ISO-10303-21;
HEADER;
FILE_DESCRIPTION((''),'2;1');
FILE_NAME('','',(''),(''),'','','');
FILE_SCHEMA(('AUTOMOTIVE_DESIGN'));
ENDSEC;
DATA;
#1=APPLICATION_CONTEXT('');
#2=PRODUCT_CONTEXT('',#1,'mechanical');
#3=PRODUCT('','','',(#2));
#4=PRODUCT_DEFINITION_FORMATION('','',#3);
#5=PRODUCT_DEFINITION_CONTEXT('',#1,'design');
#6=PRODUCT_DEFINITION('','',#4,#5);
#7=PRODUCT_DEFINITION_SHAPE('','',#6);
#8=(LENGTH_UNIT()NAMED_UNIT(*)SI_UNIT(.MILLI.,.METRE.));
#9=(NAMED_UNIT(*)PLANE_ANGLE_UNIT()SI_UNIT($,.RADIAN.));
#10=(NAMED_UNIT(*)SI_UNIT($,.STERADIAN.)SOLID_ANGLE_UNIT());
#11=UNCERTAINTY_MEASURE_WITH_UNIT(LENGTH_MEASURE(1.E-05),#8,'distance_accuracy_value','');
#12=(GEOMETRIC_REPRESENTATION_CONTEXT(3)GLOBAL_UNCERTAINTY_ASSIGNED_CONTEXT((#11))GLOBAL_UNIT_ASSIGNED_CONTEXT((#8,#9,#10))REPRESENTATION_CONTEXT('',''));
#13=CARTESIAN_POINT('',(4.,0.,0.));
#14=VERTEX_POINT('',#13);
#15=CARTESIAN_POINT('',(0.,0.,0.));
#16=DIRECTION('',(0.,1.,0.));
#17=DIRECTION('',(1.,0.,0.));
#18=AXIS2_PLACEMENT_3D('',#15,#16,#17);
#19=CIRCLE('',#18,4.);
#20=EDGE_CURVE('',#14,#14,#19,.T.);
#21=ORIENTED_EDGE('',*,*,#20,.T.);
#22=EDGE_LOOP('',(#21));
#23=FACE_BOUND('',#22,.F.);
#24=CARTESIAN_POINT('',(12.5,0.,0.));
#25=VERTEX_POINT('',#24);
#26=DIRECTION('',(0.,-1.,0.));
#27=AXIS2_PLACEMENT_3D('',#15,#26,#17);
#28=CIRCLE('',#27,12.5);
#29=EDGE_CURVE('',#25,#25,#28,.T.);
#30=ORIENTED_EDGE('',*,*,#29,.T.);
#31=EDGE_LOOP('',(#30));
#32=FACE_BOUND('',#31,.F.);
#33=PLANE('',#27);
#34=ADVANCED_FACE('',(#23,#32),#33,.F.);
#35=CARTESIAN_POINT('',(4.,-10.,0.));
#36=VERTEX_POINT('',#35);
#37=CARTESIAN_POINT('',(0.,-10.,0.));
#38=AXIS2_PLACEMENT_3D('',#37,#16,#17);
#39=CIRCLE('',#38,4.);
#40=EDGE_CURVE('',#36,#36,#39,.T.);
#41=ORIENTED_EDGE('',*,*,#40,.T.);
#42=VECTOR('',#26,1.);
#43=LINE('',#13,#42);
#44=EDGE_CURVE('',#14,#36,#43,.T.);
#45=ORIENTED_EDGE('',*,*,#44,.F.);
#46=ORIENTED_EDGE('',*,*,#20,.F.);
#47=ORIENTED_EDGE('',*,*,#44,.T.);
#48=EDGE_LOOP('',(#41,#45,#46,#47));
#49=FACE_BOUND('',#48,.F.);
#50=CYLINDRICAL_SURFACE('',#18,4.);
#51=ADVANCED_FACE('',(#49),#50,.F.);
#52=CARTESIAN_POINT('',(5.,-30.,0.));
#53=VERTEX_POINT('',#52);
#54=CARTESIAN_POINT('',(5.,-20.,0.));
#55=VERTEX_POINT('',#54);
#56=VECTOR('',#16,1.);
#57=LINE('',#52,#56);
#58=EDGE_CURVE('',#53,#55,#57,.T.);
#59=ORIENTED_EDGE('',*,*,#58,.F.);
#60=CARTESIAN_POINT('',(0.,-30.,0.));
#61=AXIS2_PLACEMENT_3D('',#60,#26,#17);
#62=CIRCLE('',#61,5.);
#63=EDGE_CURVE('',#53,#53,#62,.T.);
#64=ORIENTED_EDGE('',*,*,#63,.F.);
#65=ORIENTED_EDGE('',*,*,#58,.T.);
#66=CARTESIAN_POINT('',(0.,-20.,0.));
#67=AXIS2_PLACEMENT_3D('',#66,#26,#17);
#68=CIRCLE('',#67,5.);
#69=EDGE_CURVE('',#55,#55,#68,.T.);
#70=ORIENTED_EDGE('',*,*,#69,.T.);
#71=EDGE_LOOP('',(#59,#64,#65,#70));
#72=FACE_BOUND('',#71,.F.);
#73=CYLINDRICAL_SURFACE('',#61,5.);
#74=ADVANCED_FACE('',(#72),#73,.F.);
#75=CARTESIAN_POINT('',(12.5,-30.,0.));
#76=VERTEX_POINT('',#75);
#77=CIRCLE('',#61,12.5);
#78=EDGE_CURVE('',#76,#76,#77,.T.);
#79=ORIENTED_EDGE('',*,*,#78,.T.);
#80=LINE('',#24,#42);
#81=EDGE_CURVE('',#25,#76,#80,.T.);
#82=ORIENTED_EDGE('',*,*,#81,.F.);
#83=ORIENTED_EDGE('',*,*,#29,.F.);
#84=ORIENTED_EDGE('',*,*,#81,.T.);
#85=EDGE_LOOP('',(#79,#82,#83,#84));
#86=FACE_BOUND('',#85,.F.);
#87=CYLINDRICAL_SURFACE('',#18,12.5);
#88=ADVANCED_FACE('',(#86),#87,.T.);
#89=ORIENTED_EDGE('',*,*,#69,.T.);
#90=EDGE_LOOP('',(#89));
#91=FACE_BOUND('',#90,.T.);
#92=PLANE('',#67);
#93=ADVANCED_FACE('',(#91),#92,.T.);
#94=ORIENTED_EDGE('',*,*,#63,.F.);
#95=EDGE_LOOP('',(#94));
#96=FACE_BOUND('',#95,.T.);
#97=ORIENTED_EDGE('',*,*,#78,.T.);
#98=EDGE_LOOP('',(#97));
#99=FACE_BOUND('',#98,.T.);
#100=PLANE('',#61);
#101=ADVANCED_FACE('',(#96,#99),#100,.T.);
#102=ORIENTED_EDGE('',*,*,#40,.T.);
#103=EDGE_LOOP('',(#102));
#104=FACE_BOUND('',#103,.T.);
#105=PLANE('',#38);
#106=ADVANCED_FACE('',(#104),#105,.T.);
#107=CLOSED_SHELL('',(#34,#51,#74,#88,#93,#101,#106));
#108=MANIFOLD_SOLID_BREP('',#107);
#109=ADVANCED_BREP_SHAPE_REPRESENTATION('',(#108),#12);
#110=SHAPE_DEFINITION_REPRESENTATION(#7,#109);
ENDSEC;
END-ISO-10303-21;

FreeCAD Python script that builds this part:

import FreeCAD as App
import Part
import Sketcher

doc = App.newDocument("Part")
body = doc.addObject("PartDesign::Body", "Body")

# Sketch on XZ plane
sketch1 = doc.addObject("Sketcher::SketchObject", "Sketch")
body.addObject(sketch1)
sketch1.AttachmentSupport = (doc.XZ_Plane, [""])
sketch1.MapMode = "FlatFace"
sketch1.addGeometry(Part.Circle(App.Vector(0, 0, 0), App.Vector(0, 0, 1), 12), False)
sketch1.addConstraint([
    Sketcher.Constraint("Coincident", 0, 3, -1, 1),
    Sketcher.Constraint("Diameter", 0, 25.0),
])
pad1 = doc.addObject("PartDesign::Pad", "Pad")
body.addObject(pad1)
pad1.Profile = sketch1
pad1.Length = 30

# Sketch on XZ plane
sketch2 = doc.addObject("Sketcher::SketchObject", "Sketch001")
body.addObject(sketch2)
sketch2.AttachmentSupport = (doc.XZ_Plane, [""])
sketch2.MapMode = "FlatFace"
sketch2.AttachmentOffset = App.Placement(App.Vector(0, 0, 30), App.Rotation())
sketch2.addGeometry(Part.Circle(App.Vector(0, 0, 0), App.Vector(0, 0, 1), 5), False)
sketch2.addConstraint([
    Sketcher.Constraint("Coincident", 0, 3, -1, 1),
    Sketcher.Constraint("Diameter", 0, 10.0),
])
pocket1 = doc.addObject("PartDesign::Pocket", "Pocket")
body.addObject(pocket1)
pocket1.Profile = sketch2
pocket1.Length = 10

# Sketch on XZ plane
sketch3 = doc.addObject("Sketcher::SketchObject", "Sketch002")
body.addObject(sketch3)
sketch3.AttachmentSupport = (doc.XZ_Plane, [""])
sketch3.MapMode = "FlatFace"
sketch3.addGeometry(Part.Circle(App.Vector(0, 0, 0), App.Vector(0, 0, 1), 4), False)
sketch3.addConstraint([
    Sketcher.Constraint("Coincident", 0, 3, -1, 1),
    Sketcher.Constraint("Diameter", 0, 8.0),
])
pocket2 = doc.addObject("PartDesign::Pocket", "Pocket001")
body.addObject(pocket2)
pocket2.Profile = sketch3
pocket2.Length = 10
pocket2.Reversed = True

doc.recompute()
